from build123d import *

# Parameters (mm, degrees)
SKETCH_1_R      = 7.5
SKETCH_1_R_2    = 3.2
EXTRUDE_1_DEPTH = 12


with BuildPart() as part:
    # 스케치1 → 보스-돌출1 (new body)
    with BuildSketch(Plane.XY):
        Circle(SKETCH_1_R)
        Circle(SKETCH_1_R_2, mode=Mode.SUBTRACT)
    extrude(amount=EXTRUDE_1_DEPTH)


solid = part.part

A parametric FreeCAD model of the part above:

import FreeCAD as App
import Part
import Sketcher

V = App.Vector

doc = App.newDocument("Part")
body = doc.addObject("PartDesign::Body", "Body")

# Sketch on XY plane
sketch1 = body.newObject("Sketcher::SketchObject", "Sketch")
sketch1.AttachmentSupport = (doc.getObject("XY_Plane"), [""])
sketch1.MapMode = "FlatFace"
sketch1.addGeometry(Part.Circle(V(0, 0, 0), V(0, 0, 1), 7.5), False)
sketch1.addGeometry(Part.Circle(V(0, 0, 0), V(0, 0, 1), 3.2), False)
sketch1.addConstraint(Sketcher.Constraint("Coincident", 0, 3, -1, 1))
sketch1.addConstraint(Sketcher.Constraint("Coincident", 1, 3, -1, 1))
sketch1.addConstraint(Sketcher.Constraint("Diameter", 0, 15.0))
sketch1.addConstraint(Sketcher.Constraint("Diameter", 1, 6.4))
pad1 = body.newObject("PartDesign::Pad", "Pad")
pad1.Profile = sketch1
pad1.Length = 12

doc.recompute()
